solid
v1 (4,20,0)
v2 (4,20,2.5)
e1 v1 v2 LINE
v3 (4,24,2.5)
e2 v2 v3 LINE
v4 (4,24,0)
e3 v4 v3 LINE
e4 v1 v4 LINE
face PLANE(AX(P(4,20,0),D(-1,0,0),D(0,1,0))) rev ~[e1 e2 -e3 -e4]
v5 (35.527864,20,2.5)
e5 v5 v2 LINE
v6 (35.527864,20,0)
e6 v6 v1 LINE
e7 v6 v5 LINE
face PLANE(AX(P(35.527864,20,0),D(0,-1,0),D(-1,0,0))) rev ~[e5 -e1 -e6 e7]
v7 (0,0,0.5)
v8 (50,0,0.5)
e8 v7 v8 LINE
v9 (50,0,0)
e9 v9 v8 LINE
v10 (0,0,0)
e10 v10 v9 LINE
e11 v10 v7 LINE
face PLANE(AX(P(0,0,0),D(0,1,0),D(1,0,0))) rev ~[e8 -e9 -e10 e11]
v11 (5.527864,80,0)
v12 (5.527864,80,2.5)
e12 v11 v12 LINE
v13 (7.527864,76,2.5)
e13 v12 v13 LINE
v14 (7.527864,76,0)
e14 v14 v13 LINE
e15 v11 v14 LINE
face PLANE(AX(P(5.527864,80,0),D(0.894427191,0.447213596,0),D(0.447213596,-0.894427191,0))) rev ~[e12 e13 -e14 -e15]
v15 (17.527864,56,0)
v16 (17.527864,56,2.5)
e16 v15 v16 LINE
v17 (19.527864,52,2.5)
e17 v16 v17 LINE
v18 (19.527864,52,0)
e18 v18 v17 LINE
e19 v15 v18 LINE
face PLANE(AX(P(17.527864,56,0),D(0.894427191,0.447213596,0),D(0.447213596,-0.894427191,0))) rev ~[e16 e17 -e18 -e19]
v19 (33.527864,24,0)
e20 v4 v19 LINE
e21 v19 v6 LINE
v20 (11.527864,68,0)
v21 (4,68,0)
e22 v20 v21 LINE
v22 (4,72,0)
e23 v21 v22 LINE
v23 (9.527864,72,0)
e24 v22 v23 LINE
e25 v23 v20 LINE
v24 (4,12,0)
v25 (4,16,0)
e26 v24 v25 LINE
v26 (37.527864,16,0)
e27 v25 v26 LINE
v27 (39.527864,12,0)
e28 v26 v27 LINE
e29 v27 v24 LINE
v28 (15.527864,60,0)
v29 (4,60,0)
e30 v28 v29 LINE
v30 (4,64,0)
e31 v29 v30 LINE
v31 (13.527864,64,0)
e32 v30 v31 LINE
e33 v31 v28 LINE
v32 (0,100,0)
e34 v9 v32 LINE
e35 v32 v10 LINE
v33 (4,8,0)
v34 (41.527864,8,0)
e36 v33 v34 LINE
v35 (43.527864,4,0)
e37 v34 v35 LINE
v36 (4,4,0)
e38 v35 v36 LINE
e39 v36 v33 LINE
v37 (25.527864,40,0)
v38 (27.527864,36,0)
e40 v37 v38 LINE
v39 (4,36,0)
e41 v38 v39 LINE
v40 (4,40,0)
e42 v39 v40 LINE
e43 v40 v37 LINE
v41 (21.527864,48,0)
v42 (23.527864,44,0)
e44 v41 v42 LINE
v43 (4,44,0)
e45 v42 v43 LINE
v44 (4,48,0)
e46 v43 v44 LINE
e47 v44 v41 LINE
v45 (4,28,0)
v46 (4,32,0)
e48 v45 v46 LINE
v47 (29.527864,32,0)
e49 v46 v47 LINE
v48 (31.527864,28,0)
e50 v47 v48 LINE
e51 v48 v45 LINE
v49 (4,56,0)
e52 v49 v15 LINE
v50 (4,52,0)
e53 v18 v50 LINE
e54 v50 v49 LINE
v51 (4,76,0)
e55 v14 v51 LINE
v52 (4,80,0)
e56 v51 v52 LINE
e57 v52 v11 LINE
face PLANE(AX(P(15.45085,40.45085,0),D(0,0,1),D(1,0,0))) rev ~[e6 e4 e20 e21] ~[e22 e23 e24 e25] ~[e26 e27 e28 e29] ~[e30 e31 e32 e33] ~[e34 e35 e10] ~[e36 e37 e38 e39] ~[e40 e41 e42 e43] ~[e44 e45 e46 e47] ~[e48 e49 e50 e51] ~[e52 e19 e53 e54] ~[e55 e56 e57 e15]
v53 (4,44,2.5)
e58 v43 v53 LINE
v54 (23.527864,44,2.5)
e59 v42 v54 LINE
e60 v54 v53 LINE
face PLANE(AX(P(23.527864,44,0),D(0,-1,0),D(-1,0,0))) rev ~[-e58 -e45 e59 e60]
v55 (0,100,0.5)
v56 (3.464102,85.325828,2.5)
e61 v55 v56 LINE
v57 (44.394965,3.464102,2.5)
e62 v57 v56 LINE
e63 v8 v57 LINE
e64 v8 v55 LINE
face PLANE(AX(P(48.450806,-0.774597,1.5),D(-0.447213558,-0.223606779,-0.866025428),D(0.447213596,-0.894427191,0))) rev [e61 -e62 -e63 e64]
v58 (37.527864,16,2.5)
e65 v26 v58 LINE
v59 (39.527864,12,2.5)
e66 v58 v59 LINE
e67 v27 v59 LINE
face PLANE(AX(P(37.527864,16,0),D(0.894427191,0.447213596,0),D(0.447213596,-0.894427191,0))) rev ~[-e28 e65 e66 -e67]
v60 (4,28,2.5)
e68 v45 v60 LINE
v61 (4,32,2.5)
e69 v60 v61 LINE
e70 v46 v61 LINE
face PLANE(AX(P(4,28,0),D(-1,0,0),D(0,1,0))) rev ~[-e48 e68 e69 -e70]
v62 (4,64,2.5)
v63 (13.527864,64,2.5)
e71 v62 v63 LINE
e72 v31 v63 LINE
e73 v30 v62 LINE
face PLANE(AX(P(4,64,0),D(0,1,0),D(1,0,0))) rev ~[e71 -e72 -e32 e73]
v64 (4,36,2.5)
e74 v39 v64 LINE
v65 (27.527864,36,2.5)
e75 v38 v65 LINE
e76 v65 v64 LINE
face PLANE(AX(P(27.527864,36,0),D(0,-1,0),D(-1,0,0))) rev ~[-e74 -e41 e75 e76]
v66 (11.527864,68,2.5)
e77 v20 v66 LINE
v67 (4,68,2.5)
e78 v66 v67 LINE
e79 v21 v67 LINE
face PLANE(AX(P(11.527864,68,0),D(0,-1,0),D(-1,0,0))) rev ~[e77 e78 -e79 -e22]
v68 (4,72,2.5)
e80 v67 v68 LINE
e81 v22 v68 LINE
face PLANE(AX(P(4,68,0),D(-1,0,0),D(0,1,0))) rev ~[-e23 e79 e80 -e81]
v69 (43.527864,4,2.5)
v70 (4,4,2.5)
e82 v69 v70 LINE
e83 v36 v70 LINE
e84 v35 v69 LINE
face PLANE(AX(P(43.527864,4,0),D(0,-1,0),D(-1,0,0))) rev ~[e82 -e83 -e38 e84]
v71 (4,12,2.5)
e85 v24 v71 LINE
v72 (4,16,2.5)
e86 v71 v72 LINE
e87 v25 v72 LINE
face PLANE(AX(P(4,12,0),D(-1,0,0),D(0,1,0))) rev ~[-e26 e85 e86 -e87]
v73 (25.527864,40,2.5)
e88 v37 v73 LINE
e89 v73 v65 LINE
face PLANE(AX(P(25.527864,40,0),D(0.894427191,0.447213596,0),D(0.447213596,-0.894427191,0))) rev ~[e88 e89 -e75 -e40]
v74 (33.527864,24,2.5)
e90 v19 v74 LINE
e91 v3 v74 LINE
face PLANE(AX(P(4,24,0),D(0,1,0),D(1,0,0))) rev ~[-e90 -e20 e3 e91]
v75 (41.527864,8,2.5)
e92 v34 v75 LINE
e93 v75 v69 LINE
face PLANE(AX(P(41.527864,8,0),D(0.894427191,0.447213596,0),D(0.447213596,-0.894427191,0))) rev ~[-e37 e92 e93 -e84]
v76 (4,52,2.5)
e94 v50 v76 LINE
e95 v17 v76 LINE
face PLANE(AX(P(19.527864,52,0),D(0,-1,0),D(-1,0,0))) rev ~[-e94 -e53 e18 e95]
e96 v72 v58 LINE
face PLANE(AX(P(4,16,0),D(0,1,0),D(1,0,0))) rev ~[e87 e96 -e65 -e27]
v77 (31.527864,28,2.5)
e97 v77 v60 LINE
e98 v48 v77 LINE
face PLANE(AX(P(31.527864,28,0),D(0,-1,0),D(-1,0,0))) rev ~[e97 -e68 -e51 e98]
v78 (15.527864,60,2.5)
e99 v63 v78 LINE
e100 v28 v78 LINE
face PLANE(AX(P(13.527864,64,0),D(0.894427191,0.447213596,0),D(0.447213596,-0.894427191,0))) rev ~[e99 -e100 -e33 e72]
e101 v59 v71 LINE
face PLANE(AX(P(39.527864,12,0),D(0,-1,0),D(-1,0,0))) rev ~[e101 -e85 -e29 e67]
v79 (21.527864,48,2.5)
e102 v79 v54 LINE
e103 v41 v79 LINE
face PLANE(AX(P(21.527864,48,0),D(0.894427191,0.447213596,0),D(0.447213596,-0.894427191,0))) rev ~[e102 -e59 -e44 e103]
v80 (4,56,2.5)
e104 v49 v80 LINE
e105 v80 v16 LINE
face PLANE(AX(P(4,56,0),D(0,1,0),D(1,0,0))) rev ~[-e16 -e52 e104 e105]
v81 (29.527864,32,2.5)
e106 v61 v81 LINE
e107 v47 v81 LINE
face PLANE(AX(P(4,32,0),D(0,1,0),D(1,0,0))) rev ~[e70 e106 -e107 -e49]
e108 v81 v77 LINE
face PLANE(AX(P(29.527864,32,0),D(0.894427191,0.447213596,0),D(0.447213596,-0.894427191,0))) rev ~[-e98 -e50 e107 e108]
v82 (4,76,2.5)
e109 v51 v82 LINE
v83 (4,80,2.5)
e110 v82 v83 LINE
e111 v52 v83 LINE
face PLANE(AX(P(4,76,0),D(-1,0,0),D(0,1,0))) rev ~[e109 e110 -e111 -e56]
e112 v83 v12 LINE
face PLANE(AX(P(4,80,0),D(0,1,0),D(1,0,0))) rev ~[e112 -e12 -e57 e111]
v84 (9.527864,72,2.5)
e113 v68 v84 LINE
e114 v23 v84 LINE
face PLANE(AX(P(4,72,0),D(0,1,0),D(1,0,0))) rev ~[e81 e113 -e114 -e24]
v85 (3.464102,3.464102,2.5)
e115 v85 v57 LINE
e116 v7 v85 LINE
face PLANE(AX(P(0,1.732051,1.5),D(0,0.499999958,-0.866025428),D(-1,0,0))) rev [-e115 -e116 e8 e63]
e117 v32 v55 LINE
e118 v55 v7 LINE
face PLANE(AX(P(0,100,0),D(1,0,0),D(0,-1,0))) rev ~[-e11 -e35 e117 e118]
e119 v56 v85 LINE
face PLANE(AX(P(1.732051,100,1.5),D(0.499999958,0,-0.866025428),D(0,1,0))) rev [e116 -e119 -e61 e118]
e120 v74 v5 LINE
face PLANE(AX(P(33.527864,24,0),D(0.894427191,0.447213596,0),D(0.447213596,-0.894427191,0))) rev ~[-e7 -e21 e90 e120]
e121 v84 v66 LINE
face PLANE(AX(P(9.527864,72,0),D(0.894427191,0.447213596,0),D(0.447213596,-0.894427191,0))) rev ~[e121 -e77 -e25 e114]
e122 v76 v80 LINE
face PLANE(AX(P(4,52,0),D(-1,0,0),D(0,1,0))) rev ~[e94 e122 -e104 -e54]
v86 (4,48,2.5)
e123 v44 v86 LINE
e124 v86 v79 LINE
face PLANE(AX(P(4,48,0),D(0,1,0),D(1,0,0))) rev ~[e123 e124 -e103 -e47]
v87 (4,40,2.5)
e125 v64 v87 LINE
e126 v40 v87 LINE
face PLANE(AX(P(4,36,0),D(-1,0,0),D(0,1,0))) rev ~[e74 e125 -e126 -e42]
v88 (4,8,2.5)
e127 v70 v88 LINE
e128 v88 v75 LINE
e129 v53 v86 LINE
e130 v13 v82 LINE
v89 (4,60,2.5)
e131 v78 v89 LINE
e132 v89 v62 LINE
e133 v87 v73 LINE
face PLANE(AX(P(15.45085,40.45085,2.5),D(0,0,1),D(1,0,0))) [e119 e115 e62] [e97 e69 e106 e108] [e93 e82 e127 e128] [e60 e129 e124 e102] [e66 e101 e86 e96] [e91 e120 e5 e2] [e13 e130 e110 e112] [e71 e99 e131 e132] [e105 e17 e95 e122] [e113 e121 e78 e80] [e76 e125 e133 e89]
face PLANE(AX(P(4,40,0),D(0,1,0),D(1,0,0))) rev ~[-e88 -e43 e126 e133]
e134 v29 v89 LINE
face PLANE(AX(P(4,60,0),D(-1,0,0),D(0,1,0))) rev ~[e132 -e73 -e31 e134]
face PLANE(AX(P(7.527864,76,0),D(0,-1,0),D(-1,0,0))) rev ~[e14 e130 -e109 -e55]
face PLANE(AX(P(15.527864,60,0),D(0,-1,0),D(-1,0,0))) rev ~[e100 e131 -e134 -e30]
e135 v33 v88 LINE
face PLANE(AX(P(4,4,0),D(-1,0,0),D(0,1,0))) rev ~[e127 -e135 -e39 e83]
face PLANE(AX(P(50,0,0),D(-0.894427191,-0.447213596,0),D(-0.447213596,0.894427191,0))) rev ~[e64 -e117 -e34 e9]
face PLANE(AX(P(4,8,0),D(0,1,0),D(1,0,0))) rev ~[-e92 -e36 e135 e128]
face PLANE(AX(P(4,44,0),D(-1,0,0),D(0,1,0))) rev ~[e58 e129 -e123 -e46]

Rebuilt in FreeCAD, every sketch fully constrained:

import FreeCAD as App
import Part
import Sketcher

V = App.Vector


def edges_at(feature, points):
    """Names of the edges that pass closest to the given points."""
    edges = feature.Shape.Edges
    near = lambda p: min(range(len(edges)), key=lambda i: edges[i].distToShape(Part.Vertex(*p))[0])
    return sorted({f"Edge{near(p) + 1}" for p in points})


def add_polygon(sketch, points):
    """Adds a closed chain of lines whose ends are joined by coincident constraints."""
    first, n = sketch.GeometryCount, len(points)
    for a, b in zip(points, points[1:] + points[:1]):
        sketch.addGeometry(Part.LineSegment(App.Vector(*a, 0), App.Vector(*b, 0)), False)
    for i in range(n):
        sketch.addConstraint(Sketcher.Constraint("Coincident", first + i, 2, first + (i + 1) % n, 1))

doc = App.newDocument("Part")
body = doc.addObject("PartDesign::Body", "Body")

sketch1 = body.newObject("Sketcher::SketchObject", "Sketch")
sketch1.AttachmentSupport = (doc.getObject("XY_Plane"), [""])
sketch1.MapMode = "FlatFace"
add_polygon(sketch1, [(0, 100), (0, 0), (50, 0)])
add_polygon(sketch1, [(39.5, 12), (4, 12), (4, 16), (37.5, 16)])
add_polygon(sketch1, [(35.5, 20), (4, 20), (4, 24), (33.5, 24)])
add_polygon(sketch1, [(31.5, 28), (4, 28), (4, 32), (29.5, 32)])
add_polygon(sketch1, [(27.5, 36), (4, 36), (4, 40), (25.5, 40)])
add_polygon(sketch1, [(41.5, 8), (43.5, 4), (4, 4), (4, 8)])
add_polygon(sketch1, [(23.5, 44), (4, 44), (4, 48), (21.5, 48)])
add_polygon(sketch1, [(19.5, 52), (4, 52), (4, 56), (17.5, 56)])
add_polygon(sketch1, [(11.5, 68), (4, 68), (4, 72), (9.5, 72)])
add_polygon(sketch1, [(15.5, 60), (4, 60), (4, 64), (13.5, 64)])
add_polygon(sketch1, [(4, 76), (4, 80), (5.5, 80), (7.5, 76)])
sketch1.addConstraint(Sketcher.Constraint("Vertical", 0))
sketch1.addConstraint(Sketcher.Constraint("Horizontal", 1))
sketch1.addConstraint(Sketcher.Constraint("Horizontal", 3))
sketch1.addConstraint(Sketcher.Constraint("Vertical", 4))
sketch1.addConstraint(Sketcher.Constraint("Horizontal", 5))
sketch1.addConstraint(Sketcher.Constraint("Horizontal", 7))
sketch1.addConstraint(Sketcher.Constraint("Vertical", 8))
sketch1.addConstraint(Sketcher.Constraint("Horizontal", 9))
sketch1.addConstraint(Sketcher.Constraint("Horizontal", 11))
sketch1.addConstraint(Sketcher.Constraint("Vertical", 12))
sketch1.addConstraint(Sketcher.Constraint("Horizontal", 13))
sketch1.addConstraint(Sketcher.Constraint("Horizontal", 15))
sketch1.addConstraint(Sketcher.Constraint("Vertical", 16))
sketch1.addConstraint(Sketcher.Constraint("Horizontal", 17))
sketch1.addConstraint(Sketcher.Constraint("Horizontal", 20))
sketch1.addConstraint(Sketcher.Constraint("Vertical", 21))
sketch1.addConstraint(Sketcher.Constraint("Horizontal", 22))
sketch1.addConstraint(Sketcher.Constraint("Horizontal", 23))
sketch1.addConstraint(Sketcher.Constraint("Vertical", 24))
sketch1.addConstraint(Sketcher.Constraint("Horizontal", 25))
sketch1.addConstraint(Sketcher.Constraint("Horizontal", 27))
sketch1.addConstraint(Sketcher.Constraint("Vertical", 28))
sketch1.addConstraint(Sketcher.Constraint("Horizontal", 29))
sketch1.addConstraint(Sketcher.Constraint("Horizontal", 31))
sketch1.addConstraint(Sketcher.Constraint("Vertical", 32))
sketch1.addConstraint(Sketcher.Constraint("Horizontal", 33))
sketch1.addConstraint(Sketcher.Constraint("Horizontal", 35))
sketch1.addConstraint(Sketcher.Constraint("Vertical", 36))
sketch1.addConstraint(Sketcher.Constraint("Horizontal", 37))
sketch1.addConstraint(Sketcher.Constraint("Vertical", 39))
sketch1.addConstraint(Sketcher.Constraint("Horizontal", 40))
sketch1.addConstraint(Sketcher.Constraint("Horizontal", 42))
sketch1.addConstraint(Sketcher.Constraint("Coincident", 0, 2, -1, 1))
sketch1.addConstraint(Sketcher.Constraint("Parallel", 2, 6))
sketch1.addConstraint(Sketcher.Constraint("Parallel", 6, 10))
sketch1.addConstraint(Sketcher.Constraint("Parallel", 10, 14))
sketch1.addConstraint(Sketcher.Constraint("Parallel", 14, 18))
sketch1.addConstraint(Sketcher.Constraint("Parallel", 18, 19))
sketch1.addConstraint(Sketcher.Constraint("Parallel", 19, 26))
sketch1.addConstraint(Sketcher.Constraint("Parallel", 26, 30))
sketch1.addConstraint(Sketcher.Constraint("Parallel", 30, 34))
sketch1.addConstraint(Sketcher.Constraint("Parallel", 34, 38))
sketch1.addConstraint(Sketcher.Constraint("Parallel", 38, 41))
sketch1.addConstraint(Sketcher.Constraint("Vertical", 4, 2, 7, 2))
sketch1.addConstraint(Sketcher.Constraint("Vertical", 8, 2, 11, 2))
sketch1.addConstraint(Sketcher.Constraint("Vertical", 12, 2, 15, 2))
sketch1.addConstraint(Sketcher.Constraint("Vertical", 16, 2, 20, 2))
sketch1.addConstraint(Sketcher.Constraint("Vertical", 21, 2, 23, 2))
sketch1.addConstraint(Sketcher.Constraint("Vertical", 24, 2, 27, 2))
sketch1.addConstraint(Sketcher.Constraint("Vertical", 28, 2, 31, 2))
sketch1.addConstraint(Sketcher.Constraint("Vertical", 32, 2, 35, 2))
sketch1.addConstraint(Sketcher.Constraint("Vertical", 36, 2, 39, 2))
sketch1.addConstraint(Sketcher.Constraint("Equal", 4, 8))
sketch1.addConstraint(Sketcher.Constraint("Equal", 8, 12))
sketch1.addConstraint(Sketcher.Constraint("Equal", 12, 16))
sketch1.addConstraint(Sketcher.Constraint("Equal", 16, 21))
sketch1.addConstraint(Sketcher.Constraint("Equal", 21, 24))
sketch1.addConstraint(Sketcher.Constraint("Equal", 24, 28))
sketch1.addConstraint(Sketcher.Constraint("Equal", 28, 32))
sketch1.addConstraint(Sketcher.Constraint("Equal", 32, 36))
sketch1.addConstraint(Sketcher.Constraint("Equal", 36, 39))
sketch1.addConstraint(Sketcher.Constraint("DistanceX", 1, 1, 1, 2, 50.0))
sketch1.addConstraint(Sketcher.Constraint("DistanceY", 0, 2, 0, 1, 100.0))
sketch1.addConstraint(Sketcher.Constraint("DistanceY", 4, 1, 4, 2, 4.0))
sketch1.addConstraint(Sketcher.Constraint("DistanceX", -1, 1, 3, 2, 4.0))
sketch1.addConstraint(Sketcher.Constraint("DistanceY", -1, 1, 3, 2, 12.0))
sketch1.addConstraint(Sketcher.Constraint("DistanceY", -1, 1, 7, 2, 20.0))
sketch1.addConstraint(Sketcher.Constraint("DistanceY", -1, 1, 11, 2, 28.0))
sketch1.addConstraint(Sketcher.Constraint("DistanceY", -1, 1, 15, 2, 36.0))
sketch1.addConstraint(Sketcher.Constraint("DistanceY", -1, 1, 19, 2, 4.0))
sketch1.addConstraint(Sketcher.Constraint("DistanceY", -1, 1, 23, 2, 44.0))
sketch1.addConstraint(Sketcher.Constraint("DistanceY", -1, 1, 27, 2, 52.0))
sketch1.addConstraint(Sketcher.Constraint("DistanceY", -1, 1, 31, 2, 68.0))
sketch1.addConstraint(Sketcher.Constraint("DistanceY", -1, 1, 35, 2, 60.0))
sketch1.addConstraint(Sketcher.Constraint("DistanceY", -1, 1, 39, 2, 80.0))
sketch1.addConstraint(Sketcher.Constraint("DistanceX", 9, 2, 5, 2, 4.0))
sketch1.addConstraint(Sketcher.Constraint("DistanceX", 13, 2, 9, 2, 4.0))
sketch1.addConstraint(Sketcher.Constraint("DistanceX", 17, 2, 13, 2, 4.0))
sketch1.addConstraint(Sketcher.Constraint("DistanceX", 6, 2, 19, 2, 4.0))
sketch1.addConstraint(Sketcher.Constraint("DistanceX", 25, 2, 17, 2, 4.0))
sketch1.addConstraint(Sketcher.Constraint("DistanceX", 29, 2, 25, 2, 4.0))
sketch1.addConstraint(Sketcher.Constraint("DistanceX", 33, 2, 29, 2, 8.0))
sketch1.addConstraint(Sketcher.Constraint("DistanceX", 34, 2, 37, 2, 2.0))
sketch1.addConstraint(Sketcher.Constraint("DistanceX", 40, 2, 33, 2, 4.0))
sketch1.addConstraint(Sketcher.Constraint("DistanceX", 3, 2, 3, 1, 35.527864))
pad1 = body.newObject("PartDesign::Pad", "Pad")
pad1.Profile = sketch1
pad1.Length = 2.5
doc.recompute()

chamfer = body.newObject("PartDesign::Chamfer", "Chamfer")
chamfer.Base = (pad1, edges_at(pad1, [(0, 50, 2.5), (25, 50, 2.5), (25, 0, 2.5)]))
chamfer.ChamferType = "Two distances"
chamfer.Size = 2
chamfer.Size2 = 3.464102

doc.recompute()
